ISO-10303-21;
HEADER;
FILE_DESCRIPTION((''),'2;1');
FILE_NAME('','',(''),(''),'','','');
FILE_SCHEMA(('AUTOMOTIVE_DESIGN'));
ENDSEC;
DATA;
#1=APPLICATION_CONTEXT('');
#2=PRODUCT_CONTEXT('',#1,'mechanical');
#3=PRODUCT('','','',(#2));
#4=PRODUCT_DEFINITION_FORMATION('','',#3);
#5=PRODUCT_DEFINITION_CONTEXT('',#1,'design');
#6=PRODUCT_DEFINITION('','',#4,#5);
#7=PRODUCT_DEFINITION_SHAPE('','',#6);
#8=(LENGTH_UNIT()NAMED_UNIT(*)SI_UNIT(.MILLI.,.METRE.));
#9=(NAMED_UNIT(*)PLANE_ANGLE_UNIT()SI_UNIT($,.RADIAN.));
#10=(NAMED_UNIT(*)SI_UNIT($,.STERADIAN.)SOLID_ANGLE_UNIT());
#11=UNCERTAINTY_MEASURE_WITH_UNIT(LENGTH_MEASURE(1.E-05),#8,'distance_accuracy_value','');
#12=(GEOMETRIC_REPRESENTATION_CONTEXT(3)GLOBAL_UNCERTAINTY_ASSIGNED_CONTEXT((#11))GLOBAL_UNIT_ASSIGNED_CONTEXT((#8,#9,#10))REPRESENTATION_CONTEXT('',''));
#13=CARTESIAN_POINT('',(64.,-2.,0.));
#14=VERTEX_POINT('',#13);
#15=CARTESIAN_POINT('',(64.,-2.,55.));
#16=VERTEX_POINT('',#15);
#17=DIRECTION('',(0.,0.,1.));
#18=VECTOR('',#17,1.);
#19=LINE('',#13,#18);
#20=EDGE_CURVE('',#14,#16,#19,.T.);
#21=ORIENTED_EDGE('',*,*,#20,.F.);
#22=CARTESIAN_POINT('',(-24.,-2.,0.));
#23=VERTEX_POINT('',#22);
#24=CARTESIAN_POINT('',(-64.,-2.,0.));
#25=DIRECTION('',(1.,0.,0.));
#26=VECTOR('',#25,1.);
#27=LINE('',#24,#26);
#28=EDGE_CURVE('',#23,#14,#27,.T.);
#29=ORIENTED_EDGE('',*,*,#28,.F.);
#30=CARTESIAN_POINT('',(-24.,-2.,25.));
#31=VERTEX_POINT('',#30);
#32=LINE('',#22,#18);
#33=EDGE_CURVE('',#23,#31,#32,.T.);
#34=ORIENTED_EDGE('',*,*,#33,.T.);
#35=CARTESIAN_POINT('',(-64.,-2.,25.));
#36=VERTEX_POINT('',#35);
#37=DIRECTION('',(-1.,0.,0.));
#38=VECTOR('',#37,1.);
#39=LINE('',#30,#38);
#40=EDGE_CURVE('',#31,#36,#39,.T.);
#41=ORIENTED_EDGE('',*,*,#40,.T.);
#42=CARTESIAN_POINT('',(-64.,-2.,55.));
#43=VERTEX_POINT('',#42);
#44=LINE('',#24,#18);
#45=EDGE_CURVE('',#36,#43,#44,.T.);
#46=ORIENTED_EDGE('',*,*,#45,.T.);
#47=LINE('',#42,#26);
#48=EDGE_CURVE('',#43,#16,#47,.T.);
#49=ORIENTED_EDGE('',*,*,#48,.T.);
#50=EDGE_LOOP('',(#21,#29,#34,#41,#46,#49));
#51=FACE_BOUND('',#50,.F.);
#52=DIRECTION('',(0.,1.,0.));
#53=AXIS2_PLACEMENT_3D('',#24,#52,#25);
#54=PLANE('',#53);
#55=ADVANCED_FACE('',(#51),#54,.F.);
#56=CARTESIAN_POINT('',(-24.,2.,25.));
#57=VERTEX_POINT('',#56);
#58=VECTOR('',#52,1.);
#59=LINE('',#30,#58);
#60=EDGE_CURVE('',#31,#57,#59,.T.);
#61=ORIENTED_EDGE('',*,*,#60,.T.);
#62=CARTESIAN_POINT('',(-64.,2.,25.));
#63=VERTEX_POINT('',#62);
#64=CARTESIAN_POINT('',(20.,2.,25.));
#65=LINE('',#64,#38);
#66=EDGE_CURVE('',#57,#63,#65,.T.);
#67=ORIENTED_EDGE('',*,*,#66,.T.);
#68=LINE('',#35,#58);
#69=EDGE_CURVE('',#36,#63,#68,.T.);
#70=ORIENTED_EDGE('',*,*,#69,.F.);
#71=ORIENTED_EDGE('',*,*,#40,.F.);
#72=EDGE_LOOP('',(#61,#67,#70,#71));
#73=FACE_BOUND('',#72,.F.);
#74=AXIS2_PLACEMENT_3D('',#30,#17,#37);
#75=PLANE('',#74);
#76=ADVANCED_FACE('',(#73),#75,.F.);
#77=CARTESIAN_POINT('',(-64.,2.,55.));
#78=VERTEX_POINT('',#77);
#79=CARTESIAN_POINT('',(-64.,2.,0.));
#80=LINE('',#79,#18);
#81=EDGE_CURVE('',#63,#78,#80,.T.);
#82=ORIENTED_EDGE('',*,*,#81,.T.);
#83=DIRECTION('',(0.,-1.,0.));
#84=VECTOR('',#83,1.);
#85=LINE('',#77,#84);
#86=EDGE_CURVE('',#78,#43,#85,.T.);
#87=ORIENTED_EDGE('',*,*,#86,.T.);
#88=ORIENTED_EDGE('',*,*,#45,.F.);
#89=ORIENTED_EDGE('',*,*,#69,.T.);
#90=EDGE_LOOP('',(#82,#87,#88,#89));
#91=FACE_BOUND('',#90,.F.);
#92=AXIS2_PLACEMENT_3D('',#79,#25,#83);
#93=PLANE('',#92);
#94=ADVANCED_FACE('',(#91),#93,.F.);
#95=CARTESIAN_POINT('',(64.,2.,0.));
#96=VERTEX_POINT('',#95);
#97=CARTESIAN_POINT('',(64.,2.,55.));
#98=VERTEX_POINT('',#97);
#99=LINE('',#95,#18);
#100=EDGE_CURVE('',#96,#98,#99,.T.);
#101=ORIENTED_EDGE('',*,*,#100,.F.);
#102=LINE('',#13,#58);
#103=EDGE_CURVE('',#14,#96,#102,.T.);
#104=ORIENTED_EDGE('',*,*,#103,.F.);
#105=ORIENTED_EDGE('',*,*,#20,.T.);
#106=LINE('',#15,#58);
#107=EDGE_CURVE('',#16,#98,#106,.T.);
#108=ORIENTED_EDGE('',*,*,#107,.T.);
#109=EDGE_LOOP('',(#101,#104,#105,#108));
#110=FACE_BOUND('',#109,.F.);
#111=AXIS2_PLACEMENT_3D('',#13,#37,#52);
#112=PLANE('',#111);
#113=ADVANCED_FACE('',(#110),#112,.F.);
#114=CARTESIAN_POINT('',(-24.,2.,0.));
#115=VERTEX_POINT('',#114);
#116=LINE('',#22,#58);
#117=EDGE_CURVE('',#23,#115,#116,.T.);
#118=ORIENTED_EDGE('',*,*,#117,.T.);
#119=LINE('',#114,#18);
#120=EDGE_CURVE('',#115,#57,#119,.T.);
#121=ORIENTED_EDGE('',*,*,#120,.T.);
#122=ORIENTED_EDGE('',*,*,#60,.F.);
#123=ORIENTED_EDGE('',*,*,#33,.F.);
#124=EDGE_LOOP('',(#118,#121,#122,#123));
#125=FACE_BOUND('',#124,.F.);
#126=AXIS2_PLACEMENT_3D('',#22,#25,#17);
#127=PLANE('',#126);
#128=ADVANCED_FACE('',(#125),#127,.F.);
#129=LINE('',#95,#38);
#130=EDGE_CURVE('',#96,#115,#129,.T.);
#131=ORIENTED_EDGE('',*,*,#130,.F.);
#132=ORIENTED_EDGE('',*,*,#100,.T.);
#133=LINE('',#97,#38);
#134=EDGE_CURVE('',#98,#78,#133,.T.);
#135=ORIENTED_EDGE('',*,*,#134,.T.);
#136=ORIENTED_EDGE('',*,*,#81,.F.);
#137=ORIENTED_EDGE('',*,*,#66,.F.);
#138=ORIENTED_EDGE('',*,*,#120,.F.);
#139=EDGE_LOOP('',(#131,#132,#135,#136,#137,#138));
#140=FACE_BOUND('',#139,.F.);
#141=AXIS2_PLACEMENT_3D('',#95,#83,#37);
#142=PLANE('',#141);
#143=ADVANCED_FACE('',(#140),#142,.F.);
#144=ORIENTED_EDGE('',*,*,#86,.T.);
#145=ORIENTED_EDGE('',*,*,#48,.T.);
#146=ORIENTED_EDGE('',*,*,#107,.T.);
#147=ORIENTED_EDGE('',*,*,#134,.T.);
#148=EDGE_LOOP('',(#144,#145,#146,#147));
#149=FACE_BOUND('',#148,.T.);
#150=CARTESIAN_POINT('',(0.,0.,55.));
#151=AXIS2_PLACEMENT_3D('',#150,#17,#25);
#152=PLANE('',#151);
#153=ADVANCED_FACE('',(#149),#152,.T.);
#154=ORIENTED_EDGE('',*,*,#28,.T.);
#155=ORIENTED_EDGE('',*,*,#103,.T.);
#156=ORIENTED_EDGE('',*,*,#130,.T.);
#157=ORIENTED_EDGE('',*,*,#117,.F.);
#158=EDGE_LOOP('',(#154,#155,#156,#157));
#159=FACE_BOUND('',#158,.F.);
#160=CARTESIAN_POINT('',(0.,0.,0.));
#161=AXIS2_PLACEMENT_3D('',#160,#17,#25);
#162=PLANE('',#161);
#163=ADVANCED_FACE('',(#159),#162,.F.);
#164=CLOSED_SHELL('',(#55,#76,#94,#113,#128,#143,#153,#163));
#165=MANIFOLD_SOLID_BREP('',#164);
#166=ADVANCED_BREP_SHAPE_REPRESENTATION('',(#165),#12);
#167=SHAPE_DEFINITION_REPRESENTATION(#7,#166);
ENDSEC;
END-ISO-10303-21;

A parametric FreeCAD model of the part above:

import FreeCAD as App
import Part
import Sketcher
Q = App.Units.Quantity

doc = App.newDocument("Part")
body = doc.addObject("PartDesign::Body", "Body")

sketch1 = body.newObject("Sketcher::SketchObject", "Sketch")
sketch1.AttachmentSupport = (doc.getObject("XY_Plane"), [""])
sketch1.MapMode = "FlatFace"
sketch1.addGeometry([
    Part.LineSegment(App.Vector(-64, 2, 0), App.Vector(-64, -2, 0)),
    Part.LineSegment(App.Vector(-64, -2, 0), App.Vector(64, -2, 0)),
    Part.LineSegment(App.Vector(64, -2, 0), App.Vector(64, 2, 0)),
    Part.LineSegment(App.Vector(64, 2, 0), App.Vector(-64, 2, 0)),
], False)
sketch1.addConstraint([
    Sketcher.Constraint("Coincident", 0, 2, 1, 1),
    Sketcher.Constraint("Coincident", 1, 2, 2, 1),
    Sketcher.Constraint("Coincident", 2, 2, 3, 1),
    Sketcher.Constraint("Coincident", 3, 2, 0, 1),
    Sketcher.Constraint("Vertical", 0),
    Sketcher.Constraint("Horizontal", 1),
    Sketcher.Constraint("Vertical", 2),
    Sketcher.Constraint("Horizontal", 3),
    Sketcher.Constraint("Symmetric", 0, 2, 2, 2, -1, 1),
    Sketcher.Constraint("DistanceX", 1, 1, 1, 2, Q("128 mm")),
    Sketcher.Constraint("DistanceY", 0, 2, 0, 1, Q("4 mm")),
])
pad1 = body.newObject("PartDesign::Pad", "Pad")
pad1.Profile = sketch1
pad1.Length = 55

sketch2 = body.newObject("Sketcher::SketchObject", "Sketch001")
sketch2.AttachmentSupport = (doc.getObject("XZ_Plane"), [""])
sketch2.MapMode = "FlatFace"
sketch2.AttachmentOffset = App.Placement(App.Vector(0, 0, 2), App.Rotation())
sketch2.addGeometry([
    Part.LineSegment(App.Vector(-64, 25, 0), App.Vector(-64, 0, 0)),
    Part.LineSegment(App.Vector(-64, 0, 0), App.Vector(-24, 0, 0)),
    Part.LineSegment(App.Vector(-24, 0, 0), App.Vector(-24, 25, 0)),
    Part.LineSegment(App.Vector(-24, 25, 0), App.Vector(-64, 25, 0)),
], False)
sketch2.addConstraint([
    Sketcher.Constraint("Coincident", 0, 2, 1, 1),
    Sketcher.Constraint("Coincident", 1, 2, 2, 1),
    Sketcher.Constraint("Coincident", 2, 2, 3, 1),
    Sketcher.Constraint("Coincident", 3, 2, 0, 1),
    Sketcher.Constraint("Vertical", 0),
    Sketcher.Constraint("Horizontal", 1),
    Sketcher.Constraint("Vertical", 2),
    Sketcher.Constraint("Horizontal", 3),
    Sketcher.Constraint("PointOnObject", 0, 2, -1),
    Sketcher.Constraint("DistanceX", 1, 1, 1, 2, Q("40 mm")),
    Sketcher.Constraint("DistanceY", 0, 2, 0, 1, Q("25 mm")),
    Sketcher.Constraint("DistanceX", 0, 2, -1, 1, Q("64 mm")),
])
pocket1 = body.newObject("PartDesign::Pocket", "Pocket")
pocket1.Profile = sketch2
pocket1.Type = "ThroughAll"

doc.recompute()
